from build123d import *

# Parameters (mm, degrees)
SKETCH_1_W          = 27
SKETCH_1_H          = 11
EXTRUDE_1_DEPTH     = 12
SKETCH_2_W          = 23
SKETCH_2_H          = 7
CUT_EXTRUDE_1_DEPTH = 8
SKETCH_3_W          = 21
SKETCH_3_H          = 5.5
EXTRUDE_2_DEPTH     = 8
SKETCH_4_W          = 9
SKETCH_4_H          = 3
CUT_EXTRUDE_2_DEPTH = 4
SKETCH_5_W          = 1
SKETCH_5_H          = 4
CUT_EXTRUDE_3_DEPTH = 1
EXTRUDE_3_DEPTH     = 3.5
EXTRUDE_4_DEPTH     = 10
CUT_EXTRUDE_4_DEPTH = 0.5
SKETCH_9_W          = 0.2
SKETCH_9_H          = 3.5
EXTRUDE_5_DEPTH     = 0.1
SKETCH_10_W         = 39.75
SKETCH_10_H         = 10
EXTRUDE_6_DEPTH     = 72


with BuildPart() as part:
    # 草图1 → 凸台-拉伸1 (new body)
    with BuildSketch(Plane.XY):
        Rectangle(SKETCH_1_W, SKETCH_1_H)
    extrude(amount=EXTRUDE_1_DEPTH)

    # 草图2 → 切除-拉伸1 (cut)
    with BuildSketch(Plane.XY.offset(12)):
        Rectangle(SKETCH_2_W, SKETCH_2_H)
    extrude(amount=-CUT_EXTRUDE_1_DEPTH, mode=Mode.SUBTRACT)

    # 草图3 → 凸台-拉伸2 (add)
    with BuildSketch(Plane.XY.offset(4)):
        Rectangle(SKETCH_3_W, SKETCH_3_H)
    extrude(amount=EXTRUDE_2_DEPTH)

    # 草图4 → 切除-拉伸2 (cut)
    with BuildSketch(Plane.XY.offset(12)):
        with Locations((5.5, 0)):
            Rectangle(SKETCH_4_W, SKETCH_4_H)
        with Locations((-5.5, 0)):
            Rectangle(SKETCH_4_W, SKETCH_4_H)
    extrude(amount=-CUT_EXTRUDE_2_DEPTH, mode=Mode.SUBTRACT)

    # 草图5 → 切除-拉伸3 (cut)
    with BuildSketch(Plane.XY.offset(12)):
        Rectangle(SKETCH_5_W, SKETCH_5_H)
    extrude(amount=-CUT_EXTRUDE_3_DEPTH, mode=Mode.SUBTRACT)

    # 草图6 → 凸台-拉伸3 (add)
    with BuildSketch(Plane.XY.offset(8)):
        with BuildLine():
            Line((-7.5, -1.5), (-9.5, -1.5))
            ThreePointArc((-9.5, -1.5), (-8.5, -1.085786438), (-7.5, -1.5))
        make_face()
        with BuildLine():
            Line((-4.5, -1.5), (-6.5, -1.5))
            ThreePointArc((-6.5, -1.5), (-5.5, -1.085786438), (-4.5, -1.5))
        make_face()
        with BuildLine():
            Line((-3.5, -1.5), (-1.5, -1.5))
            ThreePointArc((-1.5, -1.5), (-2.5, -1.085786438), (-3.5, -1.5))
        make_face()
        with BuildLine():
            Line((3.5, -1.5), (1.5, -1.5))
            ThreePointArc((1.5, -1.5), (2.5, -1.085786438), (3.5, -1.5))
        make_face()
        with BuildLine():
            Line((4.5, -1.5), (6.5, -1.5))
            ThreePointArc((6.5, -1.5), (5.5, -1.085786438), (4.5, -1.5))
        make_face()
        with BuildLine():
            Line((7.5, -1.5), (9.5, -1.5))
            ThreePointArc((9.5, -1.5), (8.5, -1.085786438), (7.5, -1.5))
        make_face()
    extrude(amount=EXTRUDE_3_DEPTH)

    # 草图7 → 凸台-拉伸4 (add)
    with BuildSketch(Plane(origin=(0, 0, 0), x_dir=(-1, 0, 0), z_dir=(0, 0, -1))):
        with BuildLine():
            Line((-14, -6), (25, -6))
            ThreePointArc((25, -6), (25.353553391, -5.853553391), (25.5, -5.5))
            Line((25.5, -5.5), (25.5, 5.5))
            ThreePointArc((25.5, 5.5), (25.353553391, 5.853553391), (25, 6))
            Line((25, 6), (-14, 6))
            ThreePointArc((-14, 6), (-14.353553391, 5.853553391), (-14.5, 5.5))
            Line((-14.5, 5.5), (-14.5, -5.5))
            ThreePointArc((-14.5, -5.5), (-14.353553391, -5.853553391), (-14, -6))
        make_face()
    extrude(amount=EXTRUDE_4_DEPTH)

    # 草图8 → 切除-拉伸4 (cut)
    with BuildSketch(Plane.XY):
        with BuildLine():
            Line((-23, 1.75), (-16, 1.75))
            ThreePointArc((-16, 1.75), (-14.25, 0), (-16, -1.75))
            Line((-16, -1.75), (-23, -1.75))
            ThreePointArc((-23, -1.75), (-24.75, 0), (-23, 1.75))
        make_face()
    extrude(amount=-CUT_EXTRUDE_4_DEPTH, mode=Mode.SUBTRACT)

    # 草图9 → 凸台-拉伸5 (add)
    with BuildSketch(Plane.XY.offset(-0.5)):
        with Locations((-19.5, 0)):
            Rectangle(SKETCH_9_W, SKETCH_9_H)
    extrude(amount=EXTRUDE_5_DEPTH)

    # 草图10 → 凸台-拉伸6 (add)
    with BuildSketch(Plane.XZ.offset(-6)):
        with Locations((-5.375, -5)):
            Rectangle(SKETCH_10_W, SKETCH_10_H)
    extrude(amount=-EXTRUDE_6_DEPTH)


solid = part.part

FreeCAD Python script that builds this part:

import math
import FreeCAD as App
import Part
import Sketcher
Q = App.Units.Quantity


def add_polygon(sketch, points):
    """Adds a closed chain of lines whose ends are joined by coincident constraints."""
    first, n = sketch.GeometryCount, len(points)
    for a, b in zip(points, points[1:] + points[:1]):
        sketch.addGeometry(Part.LineSegment(App.Vector(*a, 0), App.Vector(*b, 0)), False)
    for i in range(n):
        sketch.addConstraint(Sketcher.Constraint("Coincident", first + i, 2, first + (i + 1) % n, 1))

doc = App.newDocument("Part")
body = doc.addObject("PartDesign::Body", "Body")

# Sketch on XY plane
sketch1 = doc.addObject("Sketcher::SketchObject", "Sketch")
body.addObject(sketch1)
sketch1.AttachmentSupport = (doc.XY_Plane, [""])
sketch1.MapMode = "FlatFace"
add_polygon(sketch1, [(-14, 6), (-14, -6), (14, -6), (14, 6)])  # lines 0-3
sketch1.addConstraint(Sketcher.Constraint("Vertical", 0))
sketch1.addConstraint(Sketcher.Constraint("Horizontal", 1))
sketch1.addConstraint(Sketcher.Constraint("Vertical", 2))
sketch1.addConstraint(Sketcher.Constraint("Horizontal", 3))
sketch1.addConstraint(Sketcher.Constraint("Symmetric", 0, 2, 2, 2, -1, 1))
sketch1.addConstraint(Sketcher.Constraint("DistanceX", 1, 1, 1, 2, Q("27 mm")))
sketch1.addConstraint(Sketcher.Constraint("DistanceY", 0, 2, 0, 1, Q("11 mm")))
pad1 = doc.addObject("PartDesign::Pad", "Pad")
body.addObject(pad1)
pad1.Profile = sketch1
pad1.Length = 12

# Sketch on XY plane
sketch2 = doc.addObject("Sketcher::SketchObject", "Sketch001")
body.addObject(sketch2)
sketch2.AttachmentSupport = (doc.XY_Plane, [""])
sketch2.MapMode = "FlatFace"
sketch2.AttachmentOffset = App.Placement(App.Vector(0, 0, 12), App.Rotation())
add_polygon(sketch2, [(-12, 4), (-12, -4), (12, -4), (12, 4)])  # lines 0-3
sketch2.addConstraint(Sketcher.Constraint("Vertical", 0))
sketch2.addConstraint(Sketcher.Constraint("Horizontal", 1))
sketch2.addConstraint(Sketcher.Constraint("Vertical", 2))
sketch2.addConstraint(Sketcher.Constraint("Horizontal", 3))
sketch2.addConstraint(Sketcher.Constraint("Symmetric", 0, 2, 2, 2, -1, 1))
sketch2.addConstraint(Sketcher.Constraint("DistanceX", 1, 1, 1, 2, Q("23 mm")))
sketch2.addConstraint(Sketcher.Constraint("DistanceY", 0, 2, 0, 1, Q("7 mm")))
pocket1 = doc.addObject("PartDesign::Pocket", "Pocket")
body.addObject(pocket1)
pocket1.Profile = sketch2
pocket1.Length = 8

# Sketch on XY plane
sketch3 = doc.addObject("Sketcher::SketchObject", "Sketch002")
body.addObject(sketch3)
sketch3.AttachmentSupport = (doc.XY_Plane, [""])
sketch3.MapMode = "FlatFace"
sketch3.AttachmentOffset = App.Placement(App.Vector(0, 0, 4), App.Rotation())
add_polygon(sketch3, [(-10, 3), (-10, -3), (10, -3), (10, 3)])  # lines 0-3
sketch3.addConstraint(Sketcher.Constraint("Vertical", 0))
sketch3.addConstraint(Sketcher.Constraint("Horizontal", 1))
sketch3.addConstraint(Sketcher.Constraint("Vertical", 2))
sketch3.addConstraint(Sketcher.Constraint("Horizontal", 3))
sketch3.addConstraint(Sketcher.Constraint("Symmetric", 0, 2, 2, 2, -1, 1))
sketch3.addConstraint(Sketcher.Constraint("DistanceX", 1, 1, 1, 2, Q("21 mm")))
sketch3.addConstraint(Sketcher.Constraint("DistanceY", 0, 2, 0, 1, Q("5.5 mm")))
pad2 = doc.addObject("PartDesign::Pad", "Pad001")
body.addObject(pad2)
pad2.Profile = sketch3
pad2.Length = 8

# Sketch on XY plane
sketch4 = doc.addObject("Sketcher::SketchObject", "Sketch003")
body.addObject(sketch4)
sketch4.AttachmentSupport = (doc.XY_Plane, [""])
sketch4.MapMode = "FlatFace"
sketch4.AttachmentOffset = App.Placement(App.Vector(0, 0, 12), App.Rotation())
add_polygon(sketch4, [(1, 1.5), (1, -1.5), (10, -1.5), (10, 1.5)])  # lines 0-3
add_polygon(sketch4, [(-10, 1.5), (-10, -1.5), (-1, -1.5), (-1, 1.5)])  # lines 4-7
sketch4.addConstraint(Sketcher.Constraint("Vertical", 0))
sketch4.addConstraint(Sketcher.Constraint("Horizontal", 1))
sketch4.addConstraint(Sketcher.Constraint("Vertical", 2))
sketch4.addConstraint(Sketcher.Constraint("Horizontal", 3))
sketch4.addConstraint(Sketcher.Constraint("Vertical", 4))
sketch4.addConstraint(Sketcher.Constraint("Horizontal", 5))
sketch4.addConstraint(Sketcher.Constraint("Vertical", 6))
sketch4.addConstraint(Sketcher.Constraint("Horizontal", 7))
sketch4.addConstraint(Sketcher.Constraint("Symmetric", 2, 2, 4, 2, -1, 1))
sketch4.addConstraint(Sketcher.Constraint("Symmetric", 0, 2, 6, 2, -1, 1))
sketch4.addConstraint(Sketcher.Constraint("Horizontal", 1, 2, 4, 2))
sketch4.addConstraint(Sketcher.Constraint("DistanceX", 1, 1, 1, 2, Q("9 mm")))
sketch4.addConstraint(Sketcher.Constraint("DistanceY", 0, 2, 0, 1, Q("3 mm")))
sketch4.addConstraint(Sketcher.Constraint("DistanceX", -1, 1, 0, 2, Q("1 mm")))
pocket2 = doc.addObject("PartDesign::Pocket", "Pocket001")
body.addObject(pocket2)
pocket2.Profile = sketch4
pocket2.Length = 4

# Sketch on XY plane
sketch5 = doc.addObject("Sketcher::SketchObject", "Sketch004")
body.addObject(sketch5)
sketch5.AttachmentSupport = (doc.XY_Plane, [""])
sketch5.MapMode = "FlatFace"
sketch5.AttachmentOffset = App.Placement(App.Vector(0, 0, 12), App.Rotation())
add_polygon(sketch5, [(-0.5, 2), (-0.5, -2), (0.5, -2), (0.5, 2)])  # lines 0-3
sketch5.addConstraint(Sketcher.Constraint("Vertical", 0))
sketch5.addConstraint(Sketcher.Constraint("Horizontal", 1))
sketch5.addConstraint(Sketcher.Constraint("Vertical", 2))
sketch5.addConstraint(Sketcher.Constraint("Horizontal", 3))
sketch5.addConstraint(Sketcher.Constraint("Symmetric", 0, 2, 2, 2, -1, 1))
sketch5.addConstraint(Sketcher.Constraint("DistanceX", 1, 1, 1, 2, Q("1 mm")))
sketch5.addConstraint(Sketcher.Constraint("DistanceY", 0, 2, 0, 1, Q("4 mm")))
pocket3 = doc.addObject("PartDesign::Pocket", "Pocket002")
body.addObject(pocket3)
pocket3.Profile = sketch5
pocket3.Length = 1

# Sketch on XY plane
sketch6 = doc.addObject("Sketcher::SketchObject", "Sketch005")
body.addObject(sketch6)
sketch6.AttachmentSupport = (doc.XY_Plane, [""])
sketch6.MapMode = "FlatFace"
sketch6.AttachmentOffset = App.Placement(App.Vector(0, 0, 8), App.Rotation())
sketch6.addGeometry(Part.LineSegment(App.Vector(-9.5, -1.5, 0), App.Vector(-7.5, -1.5, 0)), False)
sketch6.addGeometry(Part.ArcOfCircle(Part.Circle(App.Vector(-8.5, -2.5, 0), App.Vector(0, 0, 1), 1.4), math.radians(45), math.radians(135)), False)
sketch6.addGeometry(Part.LineSegment(App.Vector(-6.5, -1.5, 0), App.Vector(-4.5, -1.5, 0)), False)
sketch6.addGeometry(Part.ArcOfCircle(Part.Circle(App.Vector(-5.5, -2.5, 0), App.Vector(0, 0, 1), 1.4), math.radians(45), math.radians(135)), False)
sketch6.addGeometry(Part.LineSegment(App.Vector(-3.5, -1.5, 0), App.Vector(-1.5, -1.5, 0)), False)
sketch6.addGeometry(Part.ArcOfCircle(Part.Circle(App.Vector(-2.5, -2.5, 0), App.Vector(0, 0, 1), 1.4), math.radians(45), math.radians(135)), False)
sketch6.addGeometry(Part.LineSegment(App.Vector(1.5, -1.5, 0), App.Vector(3.5, -1.5, 0)), False)
sketch6.addGeometry(Part.ArcOfCircle(Part.Circle(App.Vector(2.5, -2.5, 0), App.Vector(0, 0, 1), 1.4), math.radians(45), math.radians(135)), False)
sketch6.addGeometry(Part.LineSegment(App.Vector(4.5, -1.5, 0), App.Vector(6.5, -1.5, 0)), False)
sketch6.addGeometry(Part.ArcOfCircle(Part.Circle(App.Vector(5.5, -2.5, 0), App.Vector(0, 0, 1), 1.4), math.radians(45), math.radians(135)), False)
sketch6.addGeometry(Part.LineSegment(App.Vector(7.5, -1.5, 0), App.Vector(9.5, -1.5, 0)), False)
sketch6.addGeometry(Part.ArcOfCircle(Part.Circle(App.Vector(8.5, -2.5, 0), App.Vector(0, 0, 1), 1.4), math.radians(45), math.radians(135)), False)
sketch6.addConstraint(Sketcher.Constraint("Coincident", 0, 1, 1, 2))
sketch6.addConstraint(Sketcher.Constraint("Coincident", 1, 1, 0, 2))
sketch6.addConstraint(Sketcher.Constraint("Coincident", 2, 1, 3, 2))
sketch6.addConstraint(Sketcher.Constraint("Coincident", 3, 1, 2, 2))
sketch6.addConstraint(Sketcher.Constraint("Coincident", 4, 1, 5, 2))
sketch6.addConstraint(Sketcher.Constraint("Coincident", 5, 1, 4, 2))
sketch6.addConstraint(Sketcher.Constraint("Coincident", 6, 1, 7, 2))
sketch6.addConstraint(Sketcher.Constraint("Coincident", 7, 1, 6, 2))
sketch6.addConstraint(Sketcher.Constraint("Coincident", 8, 1, 9, 2))
sketch6.addConstraint(Sketcher.Constraint("Coincident", 9, 1, 8, 2))
sketch6.addConstraint(Sketcher.Constraint("Coincident", 10, 1, 11, 2))
sketch6.addConstraint(Sketcher.Constraint("Coincident", 11, 1, 10, 2))
sketch6.addConstraint(Sketcher.Constraint("Horizontal", 0))
sketch6.addConstraint(Sketcher.Constraint("Horizontal", 2))
sketch6.addConstraint(Sketcher.Constraint("Horizontal", 4))
sketch6.addConstraint(Sketcher.Constraint("Horizontal", 6))
sketch6.addConstraint(Sketcher.Constraint("Horizontal", 8))
sketch6.addConstraint(Sketcher.Constraint("Horizontal", 10))
sketch6.addConstraint(Sketcher.Constraint("Equal", 1, 3))
sketch6.addConstraint(Sketcher.Constraint("Equal", 3, 5))
sketch6.addConstraint(Sketcher.Constraint("Equal", 5, 7))
sketch6.addConstraint(Sketcher.Constraint("Equal", 7, 9))
sketch6.addConstraint(Sketcher.Constraint("Equal", 9, 11))
sketch6.addConstraint(Sketcher.Constraint("Symmetric", 5, 3, 7, 3, -2))
sketch6.addConstraint(Sketcher.Constraint("Symmetric", 3, 3, 9, 3, -2))
sketch6.addConstraint(Sketcher.Constraint("Symmetric", 1, 3, 11, 3, -2))
sketch6.addConstraint(Sketcher.Constraint("Horizontal", 1, 3, 3, 3))
sketch6.addConstraint(Sketcher.Constraint("Horizontal", 3, 3, 5, 3))
sketch6.addConstraint(Sketcher.Constraint("Horizontal", 1, 1, 2, 1))
sketch6.addConstraint(Sketcher.Constraint("Horizontal", 3, 1, 4, 1))
sketch6.addConstraint(Sketcher.Constraint("Horizontal", 5, 1, 6, 1))
sketch6.addConstraint(Sketcher.Constraint("Horizontal", 7, 1, 8, 1))
sketch6.addConstraint(Sketcher.Constraint("Horizontal", 9, 1, 10, 1))
sketch6.addConstraint(Sketcher.Constraint("DistanceX", 0, 1, 0, 2, Q("2 mm")))
sketch6.addConstraint(Sketcher.Constraint("DistanceX", 1, 3, 3, 3, Q("3 mm")))
sketch6.addConstraint(Sketcher.Constraint("DistanceX", 3, 3, 5, 3, Q("3 mm")))
sketch6.addConstraint(Sketcher.Constraint("DistanceX", 5, 3, 7, 3, Q("5 mm")))
sketch6.addConstraint(Sketcher.Constraint("DistanceY", 1, 3, 0, 1, Q("1 mm")))
sketch6.addConstraint(Sketcher.Constraint("DistanceY", 1, 3, -1, 1, Q("2.5 mm")))
pad3 = doc.addObject("PartDesign::Pad", "Pad002")
body.addObject(pad3)
pad3.Profile = sketch6
pad3.Length = 3.5

# Sketch on XY plane
sketch7 = doc.addObject("Sketcher::SketchObject", "Sketch006")
body.addObject(sketch7)
sketch7.AttachmentSupport = (doc.XY_Plane, [""])
sketch7.MapMode = "FlatFace"
sketch7.addGeometry(Part.LineSegment(App.Vector(14, -6, 0), App.Vector(-25, -6, 0)), False)
sketch7.addGeometry(Part.ArcOfCircle(Part.Circle(App.Vector(-25, -5.5, 0), App.Vector(0, 0, 1), 0.5), math.radians(180), math.radians(270)), False)
sketch7.addGeometry(Part.LineSegment(App.Vector(-25.5, -5.5, 0), App.Vector(-25.5, 5.5, 0)), False)
sketch7.addGeometry(Part.ArcOfCircle(Part.Circle(App.Vector(-25, 5.5, 0), App.Vector(0, 0, 1), 0.5), math.radians(90), math.radians(180)), False)
sketch7.addGeometry(Part.LineSegment(App.Vector(-25, 6, 0), App.Vector(14, 6, 0)), False)
sketch7.addGeometry(Part.ArcOfCircle(Part.Circle(App.Vector(14, 5.5, 0), App.Vector(0, 0, 1), 0.5), math.radians(0), math.radians(90)), False)
sketch7.addGeometry(Part.LineSegment(App.Vector(14.5, 5.5, 0), App.Vector(14.5, -5.5, 0)), False)
sketch7.addGeometry(Part.ArcOfCircle(Part.Circle(App.Vector(14, -5.5, 0), App.Vector(0, 0, 1), 0.5), math.radians(-90), math.radians(0)), False)
sketch7.addConstraint(Sketcher.Constraint("Tangent", 0, 2, 1, 2))
sketch7.addConstraint(Sketcher.Constraint("Tangent", 1, 1, 2, 1))
sketch7.addConstraint(Sketcher.Constraint("Tangent", 2, 2, 3, 2))
sketch7.addConstraint(Sketcher.Constraint("Tangent", 3, 1, 4, 1))
sketch7.addConstraint(Sketcher.Constraint("Tangent", 4, 2, 5, 2))
sketch7.addConstraint(Sketcher.Constraint("Tangent", 5, 1, 6, 1))
sketch7.addConstraint(Sketcher.Constraint("Tangent", 6, 2, 7, 2))
sketch7.addConstraint(Sketcher.Constraint("Tangent", 7, 1, 0, 1))
sketch7.addConstraint(Sketcher.Constraint("Horizontal", 0))
sketch7.addConstraint(Sketcher.Constraint("Vertical", 2))
sketch7.addConstraint(Sketcher.Constraint("Horizontal", 4))
sketch7.addConstraint(Sketcher.Constraint("Vertical", 6))
sketch7.addConstraint(Sketcher.Constraint("Equal", 1, 3))
sketch7.addConstraint(Sketcher.Constraint("Equal", 3, 5))
sketch7.addConstraint(Sketcher.Constraint("Equal", 5, 7))
sketch7.addConstraint(Sketcher.Constraint("Radius", 1, Q("0.5 mm")))
sketch7.addConstraint(Sketcher.Constraint("DistanceX", 0, 2, 0, 1, Q("39 mm")))
sketch7.addConstraint(Sketcher.Constraint("DistanceY", 2, 1, 2, 2, Q("11 mm")))
sketch7.addConstraint(Sketcher.Constraint("DistanceX", 1, 3, -1, 1, Q("25 mm")))
sketch7.addConstraint(Sketcher.Constraint("DistanceY", 0, 2, -1, 1, Q("6 mm")))
pad4 = doc.addObject("PartDesign::Pad", "Pad003")
body.addObject(pad4)
pad4.Profile = sketch7
pad4.Length = 10
pad4.Reversed = True

# Sketch on XY plane
sketch8 = doc.addObject("Sketcher::SketchObject", "Sketch007")
body.addObject(sketch8)
sketch8.AttachmentSupport = (doc.XY_Plane, [""])
sketch8.MapMode = "FlatFace"
sketch8.addGeometry(Part.LineSegment(App.Vector(-16, 1.8, 0), App.Vector(-23, 1.8, 0)), False)
sketch8.addGeometry(Part.ArcOfCircle(Part.Circle(App.Vector(-23, 0, 0), App.Vector(0, 0, 1), 1.8), math.radians(90), math.radians(270)), False)
sketch8.addGeometry(Part.LineSegment(App.Vector(-23, -1.8, 0), App.Vector(-16, -1.8, 0)), False)
sketch8.addGeometry(Part.ArcOfCircle(Part.Circle(App.Vector(-16, 0, 0), App.Vector(0, 0, 1), 1.8), math.radians(-90), math.radians(90)), False)
sketch8.addConstraint(Sketcher.Constraint("Tangent", 0, 2, 1, 1))
sketch8.addConstraint(Sketcher.Constraint("Tangent", 1, 2, 2, 1))
sketch8.addConstraint(Sketcher.Constraint("Tangent", 2, 2, 3, 1))
sketch8.addConstraint(Sketcher.Constraint("Tangent", 3, 2, 0, 1))
sketch8.addConstraint(Sketcher.Constraint("Horizontal", 0))
sketch8.addConstraint(Sketcher.Constraint("Horizontal", 2))
sketch8.addConstraint(Sketcher.Constraint("PointOnObject", 1, 3, -1))
sketch8.addConstraint(Sketcher.Constraint("DistanceX", 0, 2, 0, 1, Q("7 mm")))
sketch8.addConstraint(Sketcher.Constraint("Radius", 1, Q("1.75 mm")))
sketch8.addConstraint(Sketcher.Constraint("DistanceX", 1, 3, -1, 1, Q("23 mm")))
pocket4 = doc.addObject("PartDesign::Pocket", "Pocket003")
body.addObject(pocket4)
pocket4.Profile = sketch8
pocket4.Length = 0.5

# Sketch on XY plane
sketch9 = doc.addObject("Sketcher::SketchObject", "Sketch008")
body.addObject(sketch9)
sketch9.AttachmentSupport = (doc.XY_Plane, [""])
sketch9.MapMode = "FlatFace"
sketch9.AttachmentOffset = App.Placement(App.Vector(0, 0, -0.5), App.Rotation())
add_polygon(sketch9, [(-19.6, 1.75), (-19.6, -1.75), (-19.4, -1.75), (-19.4, 1.75)])  # lines 0-3
sketch9.addConstraint(Sketcher.Constraint("Vertical", 0))
sketch9.addConstraint(Sketcher.Constraint("Horizontal", 1))
sketch9.addConstraint(Sketcher.Constraint("Vertical", 2))
sketch9.addConstraint(Sketcher.Constraint("Horizontal", 3))
sketch9.addConstraint(Sketcher.Constraint("DistanceX", 1, 1, 1, 2, Q("0.2 mm")))
sketch9.addConstraint(Sketcher.Constraint("DistanceY", 0, 2, 0, 1, Q("3.5 mm")))
sketch9.addConstraint(Sketcher.Constraint("DistanceX", 0, 2, -1, 1, Q("19.6 mm")))
sketch9.addConstraint(Sketcher.Constraint("DistanceY", 0, 2, -1, 1, Q("1.75 mm")))
pad5 = doc.addObject("PartDesign::Pad", "Pad004")
body.addObject(pad5)
pad5.Profile = sketch9
pad5.Length = 0.1

# Sketch on XZ plane
sketch10 = doc.addObject("Sketcher::SketchObject", "Sketch009")
body.addObject(sketch10)
sketch10.AttachmentSupport = (doc.XZ_Plane, [""])
sketch10.MapMode = "FlatFace"
sketch10.AttachmentOffset = App.Placement(App.Vector(0, 0, -6), App.Rotation())
add_polygon(sketch10, [(-25, 0), (-25, -10), (14, -10), (14, 0)])  # lines 0-3
sketch10.addConstraint(Sketcher.Constraint("Vertical", 0))
sketch10.addConstraint(Sketcher.Constraint("Horizontal", 1))
sketch10.addConstraint(Sketcher.Constraint("Vertical", 2))
sketch10.addConstraint(Sketcher.Constraint("Horizontal", 3))
sketch10.addConstraint(Sketcher.Constraint("PointOnObject", 2, 2, -1))
sketch10.addConstraint(Sketcher.Constraint("DistanceY", 0, 2, 0, 1, Q("10 mm")))
sketch10.addConstraint(Sketcher.Constraint("DistanceX", 1, 1, 1, 2, Q("39.75 mm")))
sketch10.addConstraint(Sketcher.Constraint("DistanceX", -1, 1, 1, 2, Q("14.5 mm")))
pad6 = doc.addObject("PartDesign::Pad", "Pad005")
body.addObject(pad6)
pad6.Profile = sketch10
pad6.Length = 72
pad6.Reversed = True

doc.recompute()
